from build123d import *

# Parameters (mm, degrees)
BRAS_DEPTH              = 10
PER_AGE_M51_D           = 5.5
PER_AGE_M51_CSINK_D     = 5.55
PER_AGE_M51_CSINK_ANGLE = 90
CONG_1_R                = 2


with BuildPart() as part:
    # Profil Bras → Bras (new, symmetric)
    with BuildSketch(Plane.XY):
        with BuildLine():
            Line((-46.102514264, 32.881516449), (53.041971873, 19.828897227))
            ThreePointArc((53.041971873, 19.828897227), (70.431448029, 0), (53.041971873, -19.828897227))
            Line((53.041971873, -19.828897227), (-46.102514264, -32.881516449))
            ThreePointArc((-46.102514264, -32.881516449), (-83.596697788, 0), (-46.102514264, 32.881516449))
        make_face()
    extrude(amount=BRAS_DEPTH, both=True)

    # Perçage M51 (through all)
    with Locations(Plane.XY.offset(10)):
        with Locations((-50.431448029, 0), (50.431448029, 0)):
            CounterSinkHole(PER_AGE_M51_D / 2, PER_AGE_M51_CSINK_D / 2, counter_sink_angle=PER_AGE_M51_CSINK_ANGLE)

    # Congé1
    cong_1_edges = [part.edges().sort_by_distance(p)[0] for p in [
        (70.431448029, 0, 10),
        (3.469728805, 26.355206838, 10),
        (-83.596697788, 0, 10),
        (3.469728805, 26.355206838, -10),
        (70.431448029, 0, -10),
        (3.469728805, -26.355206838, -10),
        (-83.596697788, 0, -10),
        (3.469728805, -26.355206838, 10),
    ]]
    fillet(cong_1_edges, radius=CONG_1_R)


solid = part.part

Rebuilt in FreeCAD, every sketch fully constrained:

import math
import FreeCAD as App
import Part
import Sketcher

V = App.Vector
Q = App.Units.Quantity


def edges_at(feature, points):
    """Names of the edges that pass closest to the given points."""
    edges = feature.Shape.Edges
    near = lambda p: min(range(len(edges)), key=lambda i: edges[i].distToShape(Part.Vertex(*p))[0])
    return sorted({f"Edge{near(p) + 1}" for p in points})

doc = App.newDocument("Part")
body = doc.addObject("PartDesign::Body", "Body")

sketch1 = body.newObject("Sketcher::SketchObject", "Sketch")
sketch1.AttachmentSupport = (doc.getObject("XY_Plane"), [""])
sketch1.MapMode = "FlatFace"
sketch1.addGeometry(Part.LineSegment(V(53, 20, 0), V(-46, 33, 0)), False)
sketch1.addGeometry(Part.ArcOfCircle(Part.Circle(V(-50, 0, 0), V(0, 0, 1), 33), math.radians(82), math.radians(278)), False)
sketch1.addGeometry(Part.LineSegment(V(-46, -33, 0), V(53, -20, 0)), False)
sketch1.addGeometry(Part.ArcOfCircle(Part.Circle(V(50, 0, 0), V(0, 0, 1), 20), math.radians(-83), math.radians(83)), False)
sketch1.addConstraint(Sketcher.Constraint("Tangent", 0, 2, 1, 1))
sketch1.addConstraint(Sketcher.Constraint("Tangent", 1, 2, 2, 1))
sketch1.addConstraint(Sketcher.Constraint("Tangent", 2, 2, 3, 1))
sketch1.addConstraint(Sketcher.Constraint("Tangent", 3, 2, 0, 1))
sketch1.addConstraint(Sketcher.Constraint("Symmetric", 1, 3, 3, 3, -1, 1))
sketch1.addConstraint(Sketcher.Constraint("PointOnObject", 1, 3, -1))
sketch1.addConstraint(Sketcher.Constraint("Radius", 3, Q("20 mm")))
sketch1.addConstraint(Sketcher.Constraint("Distance", 0, Q("100 mm")))
sketch1.addConstraint(Sketcher.Constraint("Angle", 0, Q("172.5 deg")))
pad1 = body.newObject("PartDesign::Pad", "Pad")
pad1.Profile = sketch1
pad1.Length = 20
pad1.Midplane = True

sketch2 = body.newObject("Sketcher::SketchObject", "Sketch001")
sketch2.AttachmentSupport = (doc.getObject("XY_Plane"), [""])
sketch2.MapMode = "FlatFace"
sketch2.AttachmentOffset = App.Placement(V(0, 0, 10), App.Rotation())
sketch2.addGeometry(Part.Circle(V(-50.4, 0, 0), V(0, 0, 1), 2.8), False)
sketch2.addGeometry(Part.Circle(V(50.4, 0, 0), V(0, 0, 1), 2.8), False)
sketch2.addConstraint(Sketcher.Constraint("Equal", 0, 1))
sketch2.addConstraint(Sketcher.Constraint("Symmetric", 0, 3, 1, 3, -1, 1))
sketch2.addConstraint(Sketcher.Constraint("PointOnObject", 0, 3, -1))
sketch2.addConstraint(Sketcher.Constraint("Diameter", 0, Q("5.5 mm")))
sketch2.addConstraint(Sketcher.Constraint("DistanceX", 0, 3, -1, 1, Q("50.431448 mm")))
doc.recompute()
hole = body.newObject("PartDesign::Hole", "Hole")
hole.Profile = sketch2
hole.ThreadType = "None"
hole.Diameter = 5.5
hole.DepthType = "ThroughAll"
hole.HoleCutType = "Countersink"
hole.HoleCutDiameter = 5.55
hole.HoleCutCountersinkAngle = 90
doc.recompute()

fillet = body.newObject("PartDesign::Fillet", "Fillet")
fillet.Base = (hole, edges_at(hole, [
    (70.431, 0, 10),
    (3.47, 26.355, 10),
    (-83.597, 0, 10),
    (3.47, 26.355, -10),
    (70.431, 0, -10),
    (3.47, -26.355, -10),
    (-83.597, 0, -10),
    (3.47, -26.355, 10),
]))
fillet.Radius = 2

doc.recompute()
